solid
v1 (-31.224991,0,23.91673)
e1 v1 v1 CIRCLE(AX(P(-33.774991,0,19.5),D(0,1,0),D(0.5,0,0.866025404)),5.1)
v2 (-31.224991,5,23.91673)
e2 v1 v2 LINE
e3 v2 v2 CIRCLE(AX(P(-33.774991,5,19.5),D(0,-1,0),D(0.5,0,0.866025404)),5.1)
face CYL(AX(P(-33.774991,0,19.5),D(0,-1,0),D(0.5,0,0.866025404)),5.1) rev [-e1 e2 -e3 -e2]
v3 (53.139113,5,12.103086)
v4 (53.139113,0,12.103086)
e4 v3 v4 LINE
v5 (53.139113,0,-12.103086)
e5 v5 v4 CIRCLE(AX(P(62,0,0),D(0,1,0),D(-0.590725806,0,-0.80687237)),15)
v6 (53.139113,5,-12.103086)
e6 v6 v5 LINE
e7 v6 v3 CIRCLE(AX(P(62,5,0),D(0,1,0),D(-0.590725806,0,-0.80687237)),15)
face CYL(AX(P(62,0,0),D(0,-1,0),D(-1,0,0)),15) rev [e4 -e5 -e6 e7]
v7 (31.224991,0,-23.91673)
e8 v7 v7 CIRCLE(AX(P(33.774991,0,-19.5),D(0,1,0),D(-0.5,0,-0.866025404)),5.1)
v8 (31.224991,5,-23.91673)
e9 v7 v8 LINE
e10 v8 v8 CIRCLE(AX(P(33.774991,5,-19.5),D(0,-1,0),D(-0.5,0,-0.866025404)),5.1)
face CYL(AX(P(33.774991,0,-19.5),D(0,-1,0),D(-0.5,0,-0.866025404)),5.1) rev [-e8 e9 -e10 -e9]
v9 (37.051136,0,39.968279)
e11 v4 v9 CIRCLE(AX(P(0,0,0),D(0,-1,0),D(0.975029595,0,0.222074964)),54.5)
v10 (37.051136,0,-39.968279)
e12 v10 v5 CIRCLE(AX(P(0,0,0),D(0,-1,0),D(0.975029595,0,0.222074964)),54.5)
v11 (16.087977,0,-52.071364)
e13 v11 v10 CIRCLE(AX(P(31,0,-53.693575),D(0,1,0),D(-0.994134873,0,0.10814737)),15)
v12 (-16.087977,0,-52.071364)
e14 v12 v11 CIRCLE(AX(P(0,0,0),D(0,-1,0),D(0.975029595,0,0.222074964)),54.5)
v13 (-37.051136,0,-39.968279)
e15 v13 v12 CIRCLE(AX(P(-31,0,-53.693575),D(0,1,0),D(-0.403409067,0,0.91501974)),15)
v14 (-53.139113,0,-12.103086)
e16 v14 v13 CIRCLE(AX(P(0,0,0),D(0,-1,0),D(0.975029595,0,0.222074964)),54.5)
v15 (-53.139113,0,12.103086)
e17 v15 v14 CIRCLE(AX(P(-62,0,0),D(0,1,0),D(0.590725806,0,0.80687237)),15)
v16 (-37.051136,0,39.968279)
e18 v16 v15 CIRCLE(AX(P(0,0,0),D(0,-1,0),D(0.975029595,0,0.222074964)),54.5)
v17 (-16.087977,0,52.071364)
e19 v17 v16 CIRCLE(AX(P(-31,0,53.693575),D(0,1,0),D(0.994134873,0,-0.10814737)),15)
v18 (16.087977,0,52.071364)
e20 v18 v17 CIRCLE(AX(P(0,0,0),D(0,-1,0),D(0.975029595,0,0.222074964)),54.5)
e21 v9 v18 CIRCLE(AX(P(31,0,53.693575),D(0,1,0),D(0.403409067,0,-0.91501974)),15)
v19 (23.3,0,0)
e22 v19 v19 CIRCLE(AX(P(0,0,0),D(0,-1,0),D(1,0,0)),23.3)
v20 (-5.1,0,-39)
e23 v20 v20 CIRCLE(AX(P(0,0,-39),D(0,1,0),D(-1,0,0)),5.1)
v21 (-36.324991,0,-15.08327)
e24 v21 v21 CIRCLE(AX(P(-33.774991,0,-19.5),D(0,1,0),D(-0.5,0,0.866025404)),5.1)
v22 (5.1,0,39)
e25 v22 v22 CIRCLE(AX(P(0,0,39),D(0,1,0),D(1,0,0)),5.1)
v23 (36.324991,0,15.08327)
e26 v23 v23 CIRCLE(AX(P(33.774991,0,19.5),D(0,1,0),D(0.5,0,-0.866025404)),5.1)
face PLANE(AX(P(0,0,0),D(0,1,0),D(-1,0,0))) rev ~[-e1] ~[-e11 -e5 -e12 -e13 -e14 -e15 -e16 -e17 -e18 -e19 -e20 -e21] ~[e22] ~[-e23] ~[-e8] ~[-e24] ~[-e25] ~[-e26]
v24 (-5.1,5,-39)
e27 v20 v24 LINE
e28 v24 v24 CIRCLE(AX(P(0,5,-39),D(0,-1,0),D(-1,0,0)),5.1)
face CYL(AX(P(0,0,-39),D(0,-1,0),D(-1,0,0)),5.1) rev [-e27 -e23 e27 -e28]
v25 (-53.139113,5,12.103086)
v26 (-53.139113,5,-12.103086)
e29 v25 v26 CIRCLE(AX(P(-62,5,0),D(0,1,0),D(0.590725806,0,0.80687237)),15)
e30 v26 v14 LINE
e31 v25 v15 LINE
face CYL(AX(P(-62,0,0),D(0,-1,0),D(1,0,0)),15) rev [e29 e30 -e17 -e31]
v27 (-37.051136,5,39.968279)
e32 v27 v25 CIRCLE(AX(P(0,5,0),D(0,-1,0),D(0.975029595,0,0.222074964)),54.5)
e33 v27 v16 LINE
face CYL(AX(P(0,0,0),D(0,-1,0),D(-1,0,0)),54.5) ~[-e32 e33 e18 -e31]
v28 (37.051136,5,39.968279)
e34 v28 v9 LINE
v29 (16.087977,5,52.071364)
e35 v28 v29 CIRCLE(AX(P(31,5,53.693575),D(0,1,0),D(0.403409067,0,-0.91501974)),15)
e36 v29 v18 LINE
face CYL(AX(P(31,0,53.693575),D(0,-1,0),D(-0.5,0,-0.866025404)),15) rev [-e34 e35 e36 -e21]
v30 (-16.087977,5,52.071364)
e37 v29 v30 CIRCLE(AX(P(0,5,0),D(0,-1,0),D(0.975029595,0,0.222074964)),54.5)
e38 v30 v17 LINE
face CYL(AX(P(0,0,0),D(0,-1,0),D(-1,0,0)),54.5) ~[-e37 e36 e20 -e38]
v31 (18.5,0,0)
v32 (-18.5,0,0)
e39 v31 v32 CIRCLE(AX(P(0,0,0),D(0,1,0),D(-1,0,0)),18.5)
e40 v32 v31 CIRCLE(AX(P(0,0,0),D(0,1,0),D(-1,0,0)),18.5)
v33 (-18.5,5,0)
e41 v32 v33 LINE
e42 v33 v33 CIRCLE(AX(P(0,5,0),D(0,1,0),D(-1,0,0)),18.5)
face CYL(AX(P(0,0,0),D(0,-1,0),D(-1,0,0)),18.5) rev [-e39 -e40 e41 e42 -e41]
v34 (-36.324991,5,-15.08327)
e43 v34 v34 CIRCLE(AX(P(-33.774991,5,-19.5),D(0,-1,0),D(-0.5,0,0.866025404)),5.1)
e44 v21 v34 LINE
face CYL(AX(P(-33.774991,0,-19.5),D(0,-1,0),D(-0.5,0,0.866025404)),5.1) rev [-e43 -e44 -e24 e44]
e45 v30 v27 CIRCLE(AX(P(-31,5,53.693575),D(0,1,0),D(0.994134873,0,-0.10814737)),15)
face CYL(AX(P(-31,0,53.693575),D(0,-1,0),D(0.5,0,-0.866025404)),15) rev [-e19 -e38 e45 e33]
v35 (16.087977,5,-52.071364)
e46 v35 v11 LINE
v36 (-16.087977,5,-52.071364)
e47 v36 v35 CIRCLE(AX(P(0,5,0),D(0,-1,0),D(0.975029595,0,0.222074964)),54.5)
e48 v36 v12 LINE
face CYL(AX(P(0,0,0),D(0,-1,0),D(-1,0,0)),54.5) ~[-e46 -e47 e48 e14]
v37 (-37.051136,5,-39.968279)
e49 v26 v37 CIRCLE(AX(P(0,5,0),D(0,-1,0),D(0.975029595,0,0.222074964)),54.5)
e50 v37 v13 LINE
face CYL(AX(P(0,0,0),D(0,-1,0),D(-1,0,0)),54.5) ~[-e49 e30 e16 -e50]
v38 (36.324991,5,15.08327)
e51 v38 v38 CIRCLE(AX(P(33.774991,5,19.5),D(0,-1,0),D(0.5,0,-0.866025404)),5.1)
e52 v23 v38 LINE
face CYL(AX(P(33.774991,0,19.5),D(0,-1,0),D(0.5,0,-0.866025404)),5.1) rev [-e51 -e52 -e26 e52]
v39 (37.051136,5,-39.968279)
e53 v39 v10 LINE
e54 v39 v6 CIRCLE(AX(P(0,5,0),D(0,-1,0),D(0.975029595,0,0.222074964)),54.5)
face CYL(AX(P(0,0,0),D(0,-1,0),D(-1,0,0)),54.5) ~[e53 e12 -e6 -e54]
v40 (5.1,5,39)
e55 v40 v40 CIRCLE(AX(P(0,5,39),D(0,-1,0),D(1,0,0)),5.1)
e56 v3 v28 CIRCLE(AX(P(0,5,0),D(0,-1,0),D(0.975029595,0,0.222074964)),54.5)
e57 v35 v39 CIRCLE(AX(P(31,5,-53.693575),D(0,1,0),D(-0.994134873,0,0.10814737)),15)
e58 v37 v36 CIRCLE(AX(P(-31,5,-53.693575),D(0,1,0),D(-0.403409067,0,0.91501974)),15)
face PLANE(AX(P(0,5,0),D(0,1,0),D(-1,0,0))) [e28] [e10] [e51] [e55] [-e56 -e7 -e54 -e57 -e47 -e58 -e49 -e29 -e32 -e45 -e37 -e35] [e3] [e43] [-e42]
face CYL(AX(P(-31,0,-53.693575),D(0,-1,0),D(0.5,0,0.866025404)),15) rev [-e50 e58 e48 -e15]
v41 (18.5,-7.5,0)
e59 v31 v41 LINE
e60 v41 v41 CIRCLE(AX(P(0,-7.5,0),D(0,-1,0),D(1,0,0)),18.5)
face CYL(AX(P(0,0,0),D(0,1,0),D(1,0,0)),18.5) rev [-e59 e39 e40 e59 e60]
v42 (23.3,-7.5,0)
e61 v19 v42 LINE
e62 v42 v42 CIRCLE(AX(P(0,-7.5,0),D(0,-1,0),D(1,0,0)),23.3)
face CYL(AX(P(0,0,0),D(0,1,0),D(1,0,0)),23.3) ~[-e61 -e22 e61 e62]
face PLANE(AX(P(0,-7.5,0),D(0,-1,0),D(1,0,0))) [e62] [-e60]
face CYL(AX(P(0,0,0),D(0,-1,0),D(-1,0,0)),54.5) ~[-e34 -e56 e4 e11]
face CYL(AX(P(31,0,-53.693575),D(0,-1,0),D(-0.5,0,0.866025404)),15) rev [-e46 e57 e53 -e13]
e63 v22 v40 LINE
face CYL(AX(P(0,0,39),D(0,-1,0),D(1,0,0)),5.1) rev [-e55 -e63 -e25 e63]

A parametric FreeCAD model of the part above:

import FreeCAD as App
import Part
import Sketcher
Q = App.Units.Quantity

doc = App.newDocument("Part")
body = doc.addObject("PartDesign::Body", "Body")

# Sketch on XZ plane
sketch1 = body.newObject("Sketcher::SketchObject", "Sketch")
sketch1.AttachmentSupport = (doc.getObject("XZ_Plane"), [""])
sketch1.MapMode = "FlatFace"
sketch1.addGeometry([
    Part.Circle(App.Vector(0, 0, 0), App.Vector(0, 0, 1), 54),
    Part.Circle(App.Vector(0, 0, 0), App.Vector(0, 0, 1), 18),
], False)
sketch1.addConstraint([
    Sketcher.Constraint("Coincident", 0, 3, -1, 1),
    Sketcher.Constraint("Coincident", 1, 3, -1, 1),
    Sketcher.Constraint("Diameter", 0, Q("109 mm")),
    Sketcher.Constraint("Diameter", 1, Q("37 mm")),
])
pad1 = body.newObject("PartDesign::Pad", "Pad")
pad1.Profile = sketch1
pad1.Length = 5
pad1.Reversed = True

# Sketch on XZ plane
sketch2 = body.newObject("Sketcher::SketchObject", "Sketch001")
sketch2.AttachmentSupport = (doc.getObject("XZ_Plane"), [""])
sketch2.MapMode = "FlatFace"
sketch2.addGeometry(Part.Circle(App.Vector(0, -39, 0), App.Vector(0, 0, 1), 5), False)
sketch2.addConstraint([
    Sketcher.Constraint("PointOnObject", 0, 3, -2),
    Sketcher.Constraint("Diameter", 0, Q("10.2 mm")),
    Sketcher.Constraint("DistanceY", 0, 3, -1, 1, Q("39 mm")),
])
pocket1 = body.newObject("PartDesign::Pocket", "Pocket")
pocket1.Profile = sketch2
pocket1.Type = "ThroughAll"
doc.recompute()

polarpattern = body.newObject("PartDesign::PolarPattern", "PolarPattern")
polarpattern.Originals = [pocket1]
polarpattern.Axis = (doc.getObject("Y_Axis"), [""])
polarpattern.Angle = 360
polarpattern.Occurrences = 6
body.Tip = polarpattern

# Sketch on XZ plane
sketch3 = body.newObject("Sketcher::SketchObject", "Sketch002")
sketch3.AttachmentSupport = (doc.getObject("XZ_Plane"), [""])
sketch3.MapMode = "FlatFace"
sketch3.addGeometry(Part.Circle(App.Vector(62, 0, 0), App.Vector(0, 0, 1), 15), False)
sketch3.addConstraint([
    Sketcher.Constraint("PointOnObject", 0, 3, -1),
    Sketcher.Constraint("Diameter", 0, Q("30 mm")),
    Sketcher.Constraint("DistanceX", -1, 1, 0, 3, Q("62 mm")),
])
pocket2 = body.newObject("PartDesign::Pocket", "Pocket001")
pocket2.Profile = sketch3
pocket2.Type = "ThroughAll"
doc.recompute()

polarpattern2 = body.newObject("PartDesign::PolarPattern", "PolarPattern001")
polarpattern2.Originals = [pocket2]
polarpattern2.Axis = (doc.getObject("Y_Axis"), [""])
polarpattern2.Angle = 360
polarpattern2.Occurrences = 6
body.Tip = polarpattern2

# Sketch on XZ plane
sketch4 = body.newObject("Sketcher::SketchObject", "Sketch003")
sketch4.AttachmentSupport = (doc.getObject("XZ_Plane"), [""])
sketch4.MapMode = "FlatFace"
sketch4.addGeometry([
    Part.Circle(App.Vector(0, 0, 0), App.Vector(0, 0, 1), 23),
    Part.Circle(App.Vector(0, 0, 0), App.Vector(0, 0, 1), 18),
], False)
sketch4.addConstraint([
    Sketcher.Constraint("Coincident", 0, 3, -1, 1),
    Sketcher.Constraint("Coincident", 1, 3, -1, 1),
    Sketcher.Constraint("Diameter", 1, Q("37 mm")),
    Sketcher.Constraint("Diameter", 0, Q("46.6 mm")),
])
pad2 = body.newObject("PartDesign::Pad", "Pad001")
pad2.Profile = sketch4
pad2.Length = 7.5

doc.recompute()
